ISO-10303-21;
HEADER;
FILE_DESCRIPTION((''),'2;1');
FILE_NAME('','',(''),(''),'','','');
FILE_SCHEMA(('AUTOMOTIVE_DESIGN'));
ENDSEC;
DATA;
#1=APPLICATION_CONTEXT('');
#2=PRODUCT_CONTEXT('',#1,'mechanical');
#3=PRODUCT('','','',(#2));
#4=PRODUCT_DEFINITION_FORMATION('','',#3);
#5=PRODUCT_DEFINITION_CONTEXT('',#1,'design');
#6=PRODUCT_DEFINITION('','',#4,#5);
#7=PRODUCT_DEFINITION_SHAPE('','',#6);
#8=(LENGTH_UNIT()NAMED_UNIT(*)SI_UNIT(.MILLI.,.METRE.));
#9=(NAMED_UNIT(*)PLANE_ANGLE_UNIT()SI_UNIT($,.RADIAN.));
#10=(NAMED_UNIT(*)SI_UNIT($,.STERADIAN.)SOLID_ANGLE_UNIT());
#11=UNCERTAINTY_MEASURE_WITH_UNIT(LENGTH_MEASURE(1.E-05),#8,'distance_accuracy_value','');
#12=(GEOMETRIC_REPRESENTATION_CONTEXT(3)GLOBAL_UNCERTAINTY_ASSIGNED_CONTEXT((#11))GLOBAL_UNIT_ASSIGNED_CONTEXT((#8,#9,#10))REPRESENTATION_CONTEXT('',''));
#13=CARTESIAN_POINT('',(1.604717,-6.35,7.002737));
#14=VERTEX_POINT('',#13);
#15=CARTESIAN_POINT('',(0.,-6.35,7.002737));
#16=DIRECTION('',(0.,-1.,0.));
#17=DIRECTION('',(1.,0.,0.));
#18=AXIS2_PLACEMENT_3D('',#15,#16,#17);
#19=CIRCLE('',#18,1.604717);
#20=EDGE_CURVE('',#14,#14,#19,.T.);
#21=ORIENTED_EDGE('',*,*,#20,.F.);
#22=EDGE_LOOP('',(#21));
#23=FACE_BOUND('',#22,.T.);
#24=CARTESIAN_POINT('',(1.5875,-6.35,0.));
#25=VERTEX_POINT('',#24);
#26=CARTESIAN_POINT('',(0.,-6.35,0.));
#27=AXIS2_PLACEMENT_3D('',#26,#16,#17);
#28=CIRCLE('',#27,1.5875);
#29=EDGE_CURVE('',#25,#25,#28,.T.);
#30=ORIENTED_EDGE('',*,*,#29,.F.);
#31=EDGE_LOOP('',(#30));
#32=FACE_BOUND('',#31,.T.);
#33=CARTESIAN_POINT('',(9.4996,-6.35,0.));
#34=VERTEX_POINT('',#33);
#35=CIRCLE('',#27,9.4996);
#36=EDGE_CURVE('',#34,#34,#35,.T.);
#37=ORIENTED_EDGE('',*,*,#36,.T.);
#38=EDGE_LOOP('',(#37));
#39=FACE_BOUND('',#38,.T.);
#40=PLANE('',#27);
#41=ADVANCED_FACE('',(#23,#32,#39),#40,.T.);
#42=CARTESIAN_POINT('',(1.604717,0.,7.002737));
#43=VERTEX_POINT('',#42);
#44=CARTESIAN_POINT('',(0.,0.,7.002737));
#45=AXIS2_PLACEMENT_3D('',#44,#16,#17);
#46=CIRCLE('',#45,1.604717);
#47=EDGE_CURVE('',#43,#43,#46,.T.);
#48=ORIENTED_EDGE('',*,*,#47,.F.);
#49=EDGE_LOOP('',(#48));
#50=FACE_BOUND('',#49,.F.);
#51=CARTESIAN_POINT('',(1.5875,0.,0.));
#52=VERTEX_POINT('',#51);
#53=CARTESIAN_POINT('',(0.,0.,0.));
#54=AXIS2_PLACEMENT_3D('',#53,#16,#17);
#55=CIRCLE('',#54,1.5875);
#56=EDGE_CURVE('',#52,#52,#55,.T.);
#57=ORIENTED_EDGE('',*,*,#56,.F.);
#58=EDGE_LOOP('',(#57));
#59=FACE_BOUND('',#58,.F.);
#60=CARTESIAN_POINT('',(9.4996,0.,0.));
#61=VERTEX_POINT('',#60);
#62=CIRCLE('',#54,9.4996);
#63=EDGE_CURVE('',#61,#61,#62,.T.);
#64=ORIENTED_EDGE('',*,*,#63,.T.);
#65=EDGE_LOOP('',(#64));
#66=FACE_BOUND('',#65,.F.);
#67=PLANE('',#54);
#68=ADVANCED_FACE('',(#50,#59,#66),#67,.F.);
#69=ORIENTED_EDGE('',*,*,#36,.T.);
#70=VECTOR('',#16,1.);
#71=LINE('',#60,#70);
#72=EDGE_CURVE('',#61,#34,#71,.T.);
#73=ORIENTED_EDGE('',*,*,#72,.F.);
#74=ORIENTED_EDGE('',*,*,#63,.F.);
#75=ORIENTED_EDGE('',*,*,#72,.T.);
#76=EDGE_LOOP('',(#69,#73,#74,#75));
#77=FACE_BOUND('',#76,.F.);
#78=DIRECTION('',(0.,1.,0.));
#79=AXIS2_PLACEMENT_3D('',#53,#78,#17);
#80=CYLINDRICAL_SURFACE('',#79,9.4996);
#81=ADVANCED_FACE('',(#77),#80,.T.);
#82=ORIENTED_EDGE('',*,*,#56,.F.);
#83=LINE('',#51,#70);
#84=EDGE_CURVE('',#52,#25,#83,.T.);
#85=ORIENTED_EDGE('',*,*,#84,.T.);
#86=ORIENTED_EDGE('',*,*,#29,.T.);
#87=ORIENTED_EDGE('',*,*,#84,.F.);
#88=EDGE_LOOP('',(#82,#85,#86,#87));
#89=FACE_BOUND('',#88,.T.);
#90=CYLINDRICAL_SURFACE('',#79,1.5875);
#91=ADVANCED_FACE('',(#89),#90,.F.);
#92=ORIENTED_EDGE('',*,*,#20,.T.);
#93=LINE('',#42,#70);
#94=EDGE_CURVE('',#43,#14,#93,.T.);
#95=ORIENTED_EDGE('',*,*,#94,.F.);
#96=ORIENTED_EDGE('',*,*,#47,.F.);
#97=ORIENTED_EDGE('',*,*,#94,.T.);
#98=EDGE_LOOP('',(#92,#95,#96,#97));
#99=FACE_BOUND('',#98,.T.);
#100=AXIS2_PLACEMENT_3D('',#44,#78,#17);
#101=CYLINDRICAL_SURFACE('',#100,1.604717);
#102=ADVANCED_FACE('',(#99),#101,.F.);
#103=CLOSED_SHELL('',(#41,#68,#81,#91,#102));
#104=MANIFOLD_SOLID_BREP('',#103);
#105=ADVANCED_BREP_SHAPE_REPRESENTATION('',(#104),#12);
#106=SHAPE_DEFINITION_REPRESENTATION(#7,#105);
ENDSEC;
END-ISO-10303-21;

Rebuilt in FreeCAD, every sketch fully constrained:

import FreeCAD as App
import Part
import Sketcher

V = App.Vector
Q = App.Units.Quantity

doc = App.newDocument("Part")
body = doc.addObject("PartDesign::Body", "Body")

sketch1 = body.newObject("Sketcher::SketchObject", "Sketch")
sketch1.AttachmentSupport = (doc.getObject("XZ_Plane"), [""])
sketch1.MapMode = "FlatFace"
sketch1.addGeometry(Part.Circle(V(0, 0, 0), V(0, 0, 1), 9.5), False)
sketch1.addGeometry(Part.Circle(V(0, 0, 0), V(0, 0, 1), 1.6), False)
sketch1.addGeometry(Part.Circle(V(0, 7, 0), V(0, 0, 1), 1.6), False)
sketch1.addConstraint(Sketcher.Constraint("Coincident", 0, 3, -1, 1))
sketch1.addConstraint(Sketcher.Constraint("Coincident", 1, 3, -1, 1))
sketch1.addConstraint(Sketcher.Constraint("PointOnObject", 2, 3, -2))
sketch1.addConstraint(Sketcher.Constraint("Diameter", 0, Q("0.748 in")))
sketch1.addConstraint(Sketcher.Constraint("Diameter", 1, Q("0.125 in")))
sketch1.addConstraint(Sketcher.Constraint("Diameter", 2, Q("3.209434 mm")))
sketch1.addConstraint(Sketcher.Constraint("DistanceY", -1, 1, 2, 3, Q("7.002737 mm")))
pad1 = body.newObject("PartDesign::Pad", "Pad")
pad1.Profile = sketch1
pad1.Length = Q("0.25 in")

doc.recompute()
